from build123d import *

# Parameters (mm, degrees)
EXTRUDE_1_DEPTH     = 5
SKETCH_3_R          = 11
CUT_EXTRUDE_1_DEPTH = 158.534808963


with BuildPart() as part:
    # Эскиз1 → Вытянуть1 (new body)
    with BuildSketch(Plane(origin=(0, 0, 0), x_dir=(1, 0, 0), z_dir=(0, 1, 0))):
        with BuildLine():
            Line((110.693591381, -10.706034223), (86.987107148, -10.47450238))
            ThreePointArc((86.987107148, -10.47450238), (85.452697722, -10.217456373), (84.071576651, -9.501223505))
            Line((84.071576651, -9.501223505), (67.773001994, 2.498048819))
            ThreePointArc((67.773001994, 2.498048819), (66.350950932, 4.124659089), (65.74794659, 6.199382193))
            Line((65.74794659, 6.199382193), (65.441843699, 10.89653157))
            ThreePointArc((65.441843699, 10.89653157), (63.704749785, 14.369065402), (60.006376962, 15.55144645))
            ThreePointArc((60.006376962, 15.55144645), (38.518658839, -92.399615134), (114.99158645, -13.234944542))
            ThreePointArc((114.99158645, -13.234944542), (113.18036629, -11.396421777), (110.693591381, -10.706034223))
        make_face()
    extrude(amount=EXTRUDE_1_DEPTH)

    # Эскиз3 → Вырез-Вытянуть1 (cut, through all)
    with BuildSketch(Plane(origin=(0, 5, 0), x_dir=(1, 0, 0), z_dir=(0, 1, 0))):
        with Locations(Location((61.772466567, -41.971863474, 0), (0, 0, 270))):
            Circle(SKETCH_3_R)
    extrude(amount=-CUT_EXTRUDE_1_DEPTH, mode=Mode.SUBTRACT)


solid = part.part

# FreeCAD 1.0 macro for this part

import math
import FreeCAD as App
import Part
import Sketcher
from FreeCAD import Vector

doc = App.newDocument("Part")
body = doc.addObject("PartDesign::Body", "Body")

# Sketch on XZ plane
sketch1 = body.newObject("Sketcher::SketchObject", "Sketch")
sketch1.AttachmentSupport = (doc.getObject("XZ_Plane"), [""])
sketch1.MapMode = "FlatFace"
sketch1.addGeometry([
    Part.LineSegment(Vector(110.693591, 10.706034, 0), Vector(86.987107, 10.474502, 0)),  # 0
    Part.ArcOfCircle(Part.Circle(Vector(87.035938, 5.474741, 0), Vector(0, 0, 1), 5), math.radians(90.559567), math.radians(126.361097)),  # 1
    Part.LineSegment(Vector(84.071577, 9.501224, 0), Vector(67.773002, -2.498049, 0)),  # 2
    Part.ArcOfCircle(Part.Circle(Vector(70.737363, -6.524531, 0), Vector(0, 0, 1), 5), math.radians(126.361097), math.radians(176.271432)),  # 3
    Part.LineSegment(Vector(65.747947, -6.199382, 0), Vector(65.441844, -10.896532, 0)),  # 4
    Part.ArcOfCircle(Part.Circle(Vector(60.452427, -10.571382, 0), Vector(0, 0, 1), 5), math.radians(-95.118162), math.radians(-3.728568)),  # 5
    Part.ArcOfCircle(Part.Circle(Vector(65.123589, 41.581239, 0), Vector(0, 0, 1), 57.361395), math.radians(-29.61505), math.radians(264.881838)),  # 6
    Part.ArcOfCircle(Part.Circle(Vector(110.644761, 15.705796, 0), Vector(0, 0, 1), 5), math.radians(-89.440433), math.radians(-29.61505)),  # 7
], False)
sketch1.addConstraint([
    Sketcher.Constraint("Tangent", 0, 2, 1, 1),
    Sketcher.Constraint("Tangent", 1, 2, 2, 1),
    Sketcher.Constraint("Tangent", 2, 2, 3, 1),
    Sketcher.Constraint("Tangent", 3, 2, 4, 1),
    Sketcher.Constraint("Tangent", 4, 2, 5, 2),
    Sketcher.Constraint("Tangent", 5, 1, 6, 2),
    Sketcher.Constraint("Tangent", 6, 1, 7, 2),
    Sketcher.Constraint("Tangent", 7, 1, 0, 1),
    Sketcher.Constraint("Equal", 1, 3),
    Sketcher.Constraint("Equal", 3, 5),
    Sketcher.Constraint("Equal", 5, 7),
    Sketcher.Constraint("Radius", 1, 5.0),
    Sketcher.Constraint("DistanceX", -1, 1, 2, 2, 67.773002),
    Sketcher.Constraint("Radius", 6, 57.361395),
    Sketcher.Constraint("DistanceY", 5, 3, 3, 2, 4.372),
    Sketcher.Constraint("DistanceY", 1, 3, 6, 3, 36.106498),
    Sketcher.Constraint("Distance", 2, 20.239221),
    Sketcher.Constraint("DistanceY", -1, 1, 1, 3, 5.474741),
    Sketcher.Constraint("DistanceY", 3, 3, -1, 1, 6.524531),
    Sketcher.Constraint("DistanceX", -1, 1, 6, 3, 65.123589),
    Sketcher.Constraint("DistanceX", -1, 1, 7, 3, 110.644761),
])
pad1 = body.newObject("PartDesign::Pad", "Pad")
pad1.Profile = sketch1
pad1.Length = 5
pad1.Reversed = True

# Sketch on XZ plane
sketch2 = body.newObject("Sketcher::SketchObject", "Sketch001")
sketch2.AttachmentSupport = (doc.getObject("XZ_Plane"), [""])
sketch2.MapMode = "FlatFace"
sketch2.AttachmentOffset = App.Placement(Vector(0, 0, -5), App.Rotation())
sketch2.addGeometry(Part.Circle(Vector(61.772467, 41.971863, 0), Vector(0, 0, 1), 11), False)
sketch2.addConstraint([
    Sketcher.Constraint("Diameter", 0, 22.0),
    Sketcher.Constraint("DistanceX", -1, 1, 0, 3, 61.772467),
    Sketcher.Constraint("DistanceY", -1, 1, 0, 3, 41.971863),
])
pocket1 = body.newObject("PartDesign::Pocket", "Pocket")
pocket1.Profile = sketch2
pocket1.Type = "ThroughAll"
pocket1.Reversed = True

doc.recompute()
